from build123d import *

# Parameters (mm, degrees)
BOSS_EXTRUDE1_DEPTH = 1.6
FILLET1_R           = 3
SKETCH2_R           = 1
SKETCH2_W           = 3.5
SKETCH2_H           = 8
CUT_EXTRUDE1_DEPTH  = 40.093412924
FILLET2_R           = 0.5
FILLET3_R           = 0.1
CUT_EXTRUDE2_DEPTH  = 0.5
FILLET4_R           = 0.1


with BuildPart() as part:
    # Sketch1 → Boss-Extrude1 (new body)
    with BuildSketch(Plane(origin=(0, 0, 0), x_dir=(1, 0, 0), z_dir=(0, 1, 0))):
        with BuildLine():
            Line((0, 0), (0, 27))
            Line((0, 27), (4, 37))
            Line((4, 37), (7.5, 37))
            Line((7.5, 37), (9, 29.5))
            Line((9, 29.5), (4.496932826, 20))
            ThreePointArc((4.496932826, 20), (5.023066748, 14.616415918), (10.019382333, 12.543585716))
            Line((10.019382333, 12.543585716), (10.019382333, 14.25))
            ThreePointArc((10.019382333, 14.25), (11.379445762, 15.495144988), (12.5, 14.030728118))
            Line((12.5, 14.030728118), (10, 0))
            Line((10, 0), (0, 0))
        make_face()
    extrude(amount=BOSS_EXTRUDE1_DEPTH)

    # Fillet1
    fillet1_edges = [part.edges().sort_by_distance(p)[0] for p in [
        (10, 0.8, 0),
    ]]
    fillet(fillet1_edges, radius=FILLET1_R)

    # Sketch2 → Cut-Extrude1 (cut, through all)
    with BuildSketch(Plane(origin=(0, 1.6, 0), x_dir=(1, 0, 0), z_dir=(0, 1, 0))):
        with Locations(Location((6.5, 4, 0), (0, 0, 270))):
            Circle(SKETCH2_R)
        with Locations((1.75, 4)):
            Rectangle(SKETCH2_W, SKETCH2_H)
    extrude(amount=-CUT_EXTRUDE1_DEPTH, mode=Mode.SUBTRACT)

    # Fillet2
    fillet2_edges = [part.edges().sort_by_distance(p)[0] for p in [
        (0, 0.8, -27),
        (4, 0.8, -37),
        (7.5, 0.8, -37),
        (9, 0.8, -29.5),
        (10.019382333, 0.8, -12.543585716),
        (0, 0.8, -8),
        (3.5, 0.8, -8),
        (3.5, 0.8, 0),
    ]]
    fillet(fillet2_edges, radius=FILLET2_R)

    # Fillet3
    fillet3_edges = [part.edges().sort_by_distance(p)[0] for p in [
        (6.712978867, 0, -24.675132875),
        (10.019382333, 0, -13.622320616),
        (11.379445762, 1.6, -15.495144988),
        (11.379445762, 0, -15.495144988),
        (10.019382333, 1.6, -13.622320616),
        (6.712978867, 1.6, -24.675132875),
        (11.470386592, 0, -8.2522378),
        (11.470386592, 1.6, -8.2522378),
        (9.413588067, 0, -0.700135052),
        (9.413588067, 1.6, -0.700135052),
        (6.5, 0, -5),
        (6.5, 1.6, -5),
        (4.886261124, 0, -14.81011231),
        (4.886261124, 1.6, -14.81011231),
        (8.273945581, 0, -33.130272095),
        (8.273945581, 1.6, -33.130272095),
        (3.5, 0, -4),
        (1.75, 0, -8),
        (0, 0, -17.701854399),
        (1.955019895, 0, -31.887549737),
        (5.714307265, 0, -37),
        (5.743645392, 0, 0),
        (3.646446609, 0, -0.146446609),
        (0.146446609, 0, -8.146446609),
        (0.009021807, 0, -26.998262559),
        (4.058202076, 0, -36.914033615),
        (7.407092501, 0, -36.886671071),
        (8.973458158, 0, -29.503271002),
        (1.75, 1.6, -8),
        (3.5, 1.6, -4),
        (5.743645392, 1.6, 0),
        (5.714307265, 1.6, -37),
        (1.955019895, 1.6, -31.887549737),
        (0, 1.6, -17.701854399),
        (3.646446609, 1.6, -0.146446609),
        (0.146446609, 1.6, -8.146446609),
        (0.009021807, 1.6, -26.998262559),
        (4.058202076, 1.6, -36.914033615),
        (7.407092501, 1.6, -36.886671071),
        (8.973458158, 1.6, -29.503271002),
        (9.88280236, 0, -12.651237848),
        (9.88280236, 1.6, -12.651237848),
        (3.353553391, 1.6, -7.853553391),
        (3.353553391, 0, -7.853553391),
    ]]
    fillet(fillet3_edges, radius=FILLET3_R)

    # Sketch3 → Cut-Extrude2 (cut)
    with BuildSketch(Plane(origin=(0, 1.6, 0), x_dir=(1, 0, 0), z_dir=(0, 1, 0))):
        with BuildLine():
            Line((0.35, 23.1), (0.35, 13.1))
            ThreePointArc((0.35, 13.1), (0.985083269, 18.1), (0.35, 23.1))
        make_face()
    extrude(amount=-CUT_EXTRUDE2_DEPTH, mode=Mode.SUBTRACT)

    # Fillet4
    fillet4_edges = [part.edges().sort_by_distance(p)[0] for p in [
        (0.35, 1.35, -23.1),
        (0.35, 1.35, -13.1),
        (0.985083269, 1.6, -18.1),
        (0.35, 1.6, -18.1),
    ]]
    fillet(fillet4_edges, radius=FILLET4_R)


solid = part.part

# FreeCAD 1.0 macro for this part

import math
import FreeCAD as App
import Part
import Sketcher

V = App.Vector


def edges_at(feature, points):
    """Names of the edges that pass closest to the given points."""
    edges = feature.Shape.Edges
    near = lambda p: min(range(len(edges)), key=lambda i: edges[i].distToShape(Part.Vertex(*p))[0])
    return sorted({f"Edge{near(p) + 1}" for p in points})

doc = App.newDocument("Part")
body = doc.addObject("PartDesign::Body", "Body")

# Sketch on XZ plane
sketch1 = body.newObject("Sketcher::SketchObject", "Sketch")
sketch1.AttachmentSupport = (doc.getObject("XZ_Plane"), [""])
sketch1.MapMode = "FlatFace"
sketch1.addGeometry(Part.LineSegment(V(0, -27, 0), V(0, 0, 0)), False)
sketch1.addGeometry(Part.LineSegment(V(0, 0, 0), V(10, 0, 0)), False)
sketch1.addGeometry(Part.LineSegment(V(10, 0, 0), V(12.5, -14.030728, 0)), False)
sketch1.addGeometry(Part.ArcOfCircle(Part.Circle(V(11.269382, -14.25, 0), V(0, 0, 1), 1.25), math.radians(180), math.radians(370.102955)), False)
sketch1.addGeometry(Part.LineSegment(V(10.019382, -14.25, 0), V(10.019382, -12.543586, 0)), False)
sketch1.addGeometry(Part.ArcOfCircle(Part.Circle(V(9.25, -17.747013, 0), V(0, 0, 1), 5.26), math.radians(81.589148), math.radians(205.361283)), False)
sketch1.addGeometry(Part.LineSegment(V(4.496933, -20, 0), V(9, -29.5, 0)), False)
sketch1.addGeometry(Part.LineSegment(V(9, -29.5, 0), V(7.5, -37, 0)), False)
sketch1.addGeometry(Part.LineSegment(V(7.5, -37, 0), V(4, -37, 0)), False)
sketch1.addGeometry(Part.LineSegment(V(4, -37, 0), V(0, -27, 0)), False)
sketch1.addConstraint(Sketcher.Constraint("Coincident", 0, 2, 1, 1))
sketch1.addConstraint(Sketcher.Constraint("Coincident", 1, 2, 2, 1))
sketch1.addConstraint(Sketcher.Constraint("Tangent", 2, 2, 3, 2))
sketch1.addConstraint(Sketcher.Constraint("Tangent", 3, 1, 4, 1))
sketch1.addConstraint(Sketcher.Constraint("Coincident", 4, 2, 5, 1))
sketch1.addConstraint(Sketcher.Constraint("Tangent", 5, 2, 6, 1))
sketch1.addConstraint(Sketcher.Constraint("Coincident", 6, 2, 7, 1))
sketch1.addConstraint(Sketcher.Constraint("Coincident", 7, 2, 8, 1))
sketch1.addConstraint(Sketcher.Constraint("Coincident", 8, 2, 9, 1))
sketch1.addConstraint(Sketcher.Constraint("Coincident", 9, 2, 0, 1))
sketch1.addConstraint(Sketcher.Constraint("Vertical", 0))
sketch1.addConstraint(Sketcher.Constraint("Horizontal", 1))
sketch1.addConstraint(Sketcher.Constraint("Vertical", 4))
sketch1.addConstraint(Sketcher.Constraint("Horizontal", 8))
sketch1.addConstraint(Sketcher.Constraint("Coincident", 0, 2, -1, 1))
sketch1.addConstraint(Sketcher.Constraint("DistanceX", 1, 1, 1, 2, 10.0))
sketch1.addConstraint(Sketcher.Constraint("DistanceY", 0, 1, 0, 2, 27.0))
sketch1.addConstraint(Sketcher.Constraint("Radius", 3, 1.25))
sketch1.addConstraint(Sketcher.Constraint("Radius", 5, 5.26))
sketch1.addConstraint(Sketcher.Constraint("DistanceX", 8, 2, 8, 1, 3.5))
sketch1.addConstraint(Sketcher.Constraint("DistanceY", 5, 2, -1, 1, 20.0))
sketch1.addConstraint(Sketcher.Constraint("DistanceX", -1, 1, 6, 2, 9.0))
sketch1.addConstraint(Sketcher.Constraint("DistanceY", 7, 2, -1, 1, 37.0))
sketch1.addConstraint(Sketcher.Constraint("DistanceX", -1, 1, 8, 2, 4.0))
sketch1.addConstraint(Sketcher.Constraint("DistanceX", -1, 1, 2, 2, 12.5))
sketch1.addConstraint(Sketcher.Constraint("DistanceY", 6, 2, -1, 1, 29.5))
sketch1.addConstraint(Sketcher.Constraint("DistanceY", 3, 3, -1, 1, 14.25))
sketch1.addConstraint(Sketcher.Constraint("DistanceX", -1, 1, 5, 3, 9.25))
pad1 = body.newObject("PartDesign::Pad", "Pad")
pad1.Profile = sketch1
pad1.Length = 1.6
pad1.Reversed = True
doc.recompute()

fillet = body.newObject("PartDesign::Fillet", "Fillet")
fillet.Base = (pad1, edges_at(pad1, [(10, 0.8, 0)]))
fillet.Radius = 3

# Sketch on XZ plane
sketch2 = body.newObject("Sketcher::SketchObject", "Sketch001")
sketch2.AttachmentSupport = (doc.getObject("XZ_Plane"), [""])
sketch2.MapMode = "FlatFace"
sketch2.AttachmentOffset = App.Placement(V(0, 0, -1.6), App.Rotation())
sketch2.addGeometry(Part.Circle(V(6.5, -4, 0), V(0, 0, 1), 1), False)
sketch2.addGeometry(Part.LineSegment(V(0, -8, 0), V(0, 0, 0)), False)
sketch2.addGeometry(Part.LineSegment(V(0, 0, 0), V(3.5, 0, 0)), False)
sketch2.addGeometry(Part.LineSegment(V(3.5, 0, 0), V(3.5, -8, 0)), False)
sketch2.addGeometry(Part.LineSegment(V(3.5, -8, 0), V(0, -8, 0)), False)
sketch2.addConstraint(Sketcher.Constraint("Coincident", 1, 2, 2, 1))
sketch2.addConstraint(Sketcher.Constraint("Coincident", 2, 2, 3, 1))
sketch2.addConstraint(Sketcher.Constraint("Coincident", 3, 2, 4, 1))
sketch2.addConstraint(Sketcher.Constraint("Coincident", 4, 2, 1, 1))
sketch2.addConstraint(Sketcher.Constraint("Vertical", 1))
sketch2.addConstraint(Sketcher.Constraint("Horizontal", 2))
sketch2.addConstraint(Sketcher.Constraint("Vertical", 3))
sketch2.addConstraint(Sketcher.Constraint("Horizontal", 4))
sketch2.addConstraint(Sketcher.Constraint("Coincident", 1, 2, -1, 1))
sketch2.addConstraint(Sketcher.Constraint("Diameter", 0, 2.0))
sketch2.addConstraint(Sketcher.Constraint("DistanceY", 1, 1, 1, 2, 8.0))
sketch2.addConstraint(Sketcher.Constraint("DistanceX", 2, 1, 2, 2, 3.5))
sketch2.addConstraint(Sketcher.Constraint("DistanceY", 0, 3, -1, 1, 4.0))
sketch2.addConstraint(Sketcher.Constraint("DistanceX", 2, 2, 0, 3, 3.0))
pocket1 = body.newObject("PartDesign::Pocket", "Pocket")
pocket1.Profile = sketch2
pocket1.Type = "ThroughAll"
pocket1.Reversed = True
doc.recompute()

fillet2 = body.newObject("PartDesign::Fillet", "Fillet001")
fillet2.Base = (pocket1, edges_at(pocket1, [
    (0, 0.8, -27),
    (4, 0.8, -37),
    (7.5, 0.8, -37),
    (9, 0.8, -29.5),
    (10.019, 0.8, -12.544),
    (0, 0.8, -8),
    (3.5, 0.8, -8),
    (3.5, 0.8, 0),
]))
fillet2.Radius = 0.5
doc.recompute()

fillet3 = body.newObject("PartDesign::Fillet", "Fillet002")
fillet3.Base = (fillet2, edges_at(fillet2, [
    (6.713, 0, -24.675),
    (10.019, 0, -13.622),
    (11.379, 1.6, -15.495),
    (11.379, 0, -15.495),
    (10.019, 1.6, -13.622),
    (6.713, 1.6, -24.675),
    (11.47, 0, -8.252),
    (11.47, 1.6, -8.252),
    (9.414, 0, -0.7),
    (9.414, 1.6, -0.7),
    (6.5, 0, -5),
    (6.5, 1.6, -5),
    (4.886, 0, -14.81),
    (4.886, 1.6, -14.81),
    (8.274, 0, -33.13),
    (8.274, 1.6, -33.13),
    (3.5, 0, -4),
    (1.75, 0, -8),
    (0, 0, -17.702),
    (1.955, 0, -31.888),
    (5.714, 0, -37),
    (5.744, 0, 0),
    (3.646, 0, -0.146),
    (0.146, 0, -8.146),
    (0.009, 0, -26.998),
    (4.058, 0, -36.914),
    (7.407, 0, -36.887),
    (8.973, 0, -29.503),
    (1.75, 1.6, -8),
    (3.5, 1.6, -4),
    (5.744, 1.6, 0),
    (5.714, 1.6, -37),
    (1.955, 1.6, -31.888),
    (0, 1.6, -17.702),
    (3.646, 1.6, -0.146),
    (0.146, 1.6, -8.146),
    (0.009, 1.6, -26.998),
    (4.058, 1.6, -36.914),
    (7.407, 1.6, -36.887),
    (8.973, 1.6, -29.503),
    (9.883, 0, -12.651),
    (9.883, 1.6, -12.651),
    (3.354, 1.6, -7.854),
    (3.354, 0, -7.854),
]))
fillet3.Radius = 0.1

# Sketch on XZ plane
sketch3 = body.newObject("Sketcher::SketchObject", "Sketch002")
sketch3.AttachmentSupport = (doc.getObject("XZ_Plane"), [""])
sketch3.MapMode = "FlatFace"
sketch3.AttachmentOffset = App.Placement(V(0, 0, -1.6), App.Rotation())
sketch3.addGeometry(Part.LineSegment(V(0.35, -23.1, 0), V(0.35, -13.1, 0)), False)
sketch3.addGeometry(Part.ArcOfCircle(Part.Circle(V(-19.014917, -18.1, 0), V(0, 0, 1), 20), math.radians(-14.477512), math.radians(14.477512)), False)
sketch3.addConstraint(Sketcher.Constraint("Coincident", 0, 1, 1, 1))
sketch3.addConstraint(Sketcher.Constraint("Coincident", 1, 2, 0, 2))
sketch3.addConstraint(Sketcher.Constraint("Vertical", 0))
sketch3.addConstraint(Sketcher.Constraint("Radius", 1, 20.0))
sketch3.addConstraint(Sketcher.Constraint("DistanceY", 0, 1, 0, 2, 10.0))
sketch3.addConstraint(Sketcher.Constraint("DistanceY", 1, 3, -1, 1, 18.1))
sketch3.addConstraint(Sketcher.Constraint("DistanceX", -1, 1, 0, 1, 0.35))
pocket2 = body.newObject("PartDesign::Pocket", "Pocket001")
pocket2.Profile = sketch3
pocket2.Length = 0.5
pocket2.Reversed = True
doc.recompute()

fillet4 = body.newObject("PartDesign::Fillet", "Fillet003")
fillet4.Base = (pocket2, edges_at(pocket2, [
    (0.35, 1.35, -23.1),
    (0.35, 1.35, -13.1),
    (0.985, 1.6, -18.1),
    (0.35, 1.6, -18.1),
]))
fillet4.Radius = 0.1

doc.recompute()
